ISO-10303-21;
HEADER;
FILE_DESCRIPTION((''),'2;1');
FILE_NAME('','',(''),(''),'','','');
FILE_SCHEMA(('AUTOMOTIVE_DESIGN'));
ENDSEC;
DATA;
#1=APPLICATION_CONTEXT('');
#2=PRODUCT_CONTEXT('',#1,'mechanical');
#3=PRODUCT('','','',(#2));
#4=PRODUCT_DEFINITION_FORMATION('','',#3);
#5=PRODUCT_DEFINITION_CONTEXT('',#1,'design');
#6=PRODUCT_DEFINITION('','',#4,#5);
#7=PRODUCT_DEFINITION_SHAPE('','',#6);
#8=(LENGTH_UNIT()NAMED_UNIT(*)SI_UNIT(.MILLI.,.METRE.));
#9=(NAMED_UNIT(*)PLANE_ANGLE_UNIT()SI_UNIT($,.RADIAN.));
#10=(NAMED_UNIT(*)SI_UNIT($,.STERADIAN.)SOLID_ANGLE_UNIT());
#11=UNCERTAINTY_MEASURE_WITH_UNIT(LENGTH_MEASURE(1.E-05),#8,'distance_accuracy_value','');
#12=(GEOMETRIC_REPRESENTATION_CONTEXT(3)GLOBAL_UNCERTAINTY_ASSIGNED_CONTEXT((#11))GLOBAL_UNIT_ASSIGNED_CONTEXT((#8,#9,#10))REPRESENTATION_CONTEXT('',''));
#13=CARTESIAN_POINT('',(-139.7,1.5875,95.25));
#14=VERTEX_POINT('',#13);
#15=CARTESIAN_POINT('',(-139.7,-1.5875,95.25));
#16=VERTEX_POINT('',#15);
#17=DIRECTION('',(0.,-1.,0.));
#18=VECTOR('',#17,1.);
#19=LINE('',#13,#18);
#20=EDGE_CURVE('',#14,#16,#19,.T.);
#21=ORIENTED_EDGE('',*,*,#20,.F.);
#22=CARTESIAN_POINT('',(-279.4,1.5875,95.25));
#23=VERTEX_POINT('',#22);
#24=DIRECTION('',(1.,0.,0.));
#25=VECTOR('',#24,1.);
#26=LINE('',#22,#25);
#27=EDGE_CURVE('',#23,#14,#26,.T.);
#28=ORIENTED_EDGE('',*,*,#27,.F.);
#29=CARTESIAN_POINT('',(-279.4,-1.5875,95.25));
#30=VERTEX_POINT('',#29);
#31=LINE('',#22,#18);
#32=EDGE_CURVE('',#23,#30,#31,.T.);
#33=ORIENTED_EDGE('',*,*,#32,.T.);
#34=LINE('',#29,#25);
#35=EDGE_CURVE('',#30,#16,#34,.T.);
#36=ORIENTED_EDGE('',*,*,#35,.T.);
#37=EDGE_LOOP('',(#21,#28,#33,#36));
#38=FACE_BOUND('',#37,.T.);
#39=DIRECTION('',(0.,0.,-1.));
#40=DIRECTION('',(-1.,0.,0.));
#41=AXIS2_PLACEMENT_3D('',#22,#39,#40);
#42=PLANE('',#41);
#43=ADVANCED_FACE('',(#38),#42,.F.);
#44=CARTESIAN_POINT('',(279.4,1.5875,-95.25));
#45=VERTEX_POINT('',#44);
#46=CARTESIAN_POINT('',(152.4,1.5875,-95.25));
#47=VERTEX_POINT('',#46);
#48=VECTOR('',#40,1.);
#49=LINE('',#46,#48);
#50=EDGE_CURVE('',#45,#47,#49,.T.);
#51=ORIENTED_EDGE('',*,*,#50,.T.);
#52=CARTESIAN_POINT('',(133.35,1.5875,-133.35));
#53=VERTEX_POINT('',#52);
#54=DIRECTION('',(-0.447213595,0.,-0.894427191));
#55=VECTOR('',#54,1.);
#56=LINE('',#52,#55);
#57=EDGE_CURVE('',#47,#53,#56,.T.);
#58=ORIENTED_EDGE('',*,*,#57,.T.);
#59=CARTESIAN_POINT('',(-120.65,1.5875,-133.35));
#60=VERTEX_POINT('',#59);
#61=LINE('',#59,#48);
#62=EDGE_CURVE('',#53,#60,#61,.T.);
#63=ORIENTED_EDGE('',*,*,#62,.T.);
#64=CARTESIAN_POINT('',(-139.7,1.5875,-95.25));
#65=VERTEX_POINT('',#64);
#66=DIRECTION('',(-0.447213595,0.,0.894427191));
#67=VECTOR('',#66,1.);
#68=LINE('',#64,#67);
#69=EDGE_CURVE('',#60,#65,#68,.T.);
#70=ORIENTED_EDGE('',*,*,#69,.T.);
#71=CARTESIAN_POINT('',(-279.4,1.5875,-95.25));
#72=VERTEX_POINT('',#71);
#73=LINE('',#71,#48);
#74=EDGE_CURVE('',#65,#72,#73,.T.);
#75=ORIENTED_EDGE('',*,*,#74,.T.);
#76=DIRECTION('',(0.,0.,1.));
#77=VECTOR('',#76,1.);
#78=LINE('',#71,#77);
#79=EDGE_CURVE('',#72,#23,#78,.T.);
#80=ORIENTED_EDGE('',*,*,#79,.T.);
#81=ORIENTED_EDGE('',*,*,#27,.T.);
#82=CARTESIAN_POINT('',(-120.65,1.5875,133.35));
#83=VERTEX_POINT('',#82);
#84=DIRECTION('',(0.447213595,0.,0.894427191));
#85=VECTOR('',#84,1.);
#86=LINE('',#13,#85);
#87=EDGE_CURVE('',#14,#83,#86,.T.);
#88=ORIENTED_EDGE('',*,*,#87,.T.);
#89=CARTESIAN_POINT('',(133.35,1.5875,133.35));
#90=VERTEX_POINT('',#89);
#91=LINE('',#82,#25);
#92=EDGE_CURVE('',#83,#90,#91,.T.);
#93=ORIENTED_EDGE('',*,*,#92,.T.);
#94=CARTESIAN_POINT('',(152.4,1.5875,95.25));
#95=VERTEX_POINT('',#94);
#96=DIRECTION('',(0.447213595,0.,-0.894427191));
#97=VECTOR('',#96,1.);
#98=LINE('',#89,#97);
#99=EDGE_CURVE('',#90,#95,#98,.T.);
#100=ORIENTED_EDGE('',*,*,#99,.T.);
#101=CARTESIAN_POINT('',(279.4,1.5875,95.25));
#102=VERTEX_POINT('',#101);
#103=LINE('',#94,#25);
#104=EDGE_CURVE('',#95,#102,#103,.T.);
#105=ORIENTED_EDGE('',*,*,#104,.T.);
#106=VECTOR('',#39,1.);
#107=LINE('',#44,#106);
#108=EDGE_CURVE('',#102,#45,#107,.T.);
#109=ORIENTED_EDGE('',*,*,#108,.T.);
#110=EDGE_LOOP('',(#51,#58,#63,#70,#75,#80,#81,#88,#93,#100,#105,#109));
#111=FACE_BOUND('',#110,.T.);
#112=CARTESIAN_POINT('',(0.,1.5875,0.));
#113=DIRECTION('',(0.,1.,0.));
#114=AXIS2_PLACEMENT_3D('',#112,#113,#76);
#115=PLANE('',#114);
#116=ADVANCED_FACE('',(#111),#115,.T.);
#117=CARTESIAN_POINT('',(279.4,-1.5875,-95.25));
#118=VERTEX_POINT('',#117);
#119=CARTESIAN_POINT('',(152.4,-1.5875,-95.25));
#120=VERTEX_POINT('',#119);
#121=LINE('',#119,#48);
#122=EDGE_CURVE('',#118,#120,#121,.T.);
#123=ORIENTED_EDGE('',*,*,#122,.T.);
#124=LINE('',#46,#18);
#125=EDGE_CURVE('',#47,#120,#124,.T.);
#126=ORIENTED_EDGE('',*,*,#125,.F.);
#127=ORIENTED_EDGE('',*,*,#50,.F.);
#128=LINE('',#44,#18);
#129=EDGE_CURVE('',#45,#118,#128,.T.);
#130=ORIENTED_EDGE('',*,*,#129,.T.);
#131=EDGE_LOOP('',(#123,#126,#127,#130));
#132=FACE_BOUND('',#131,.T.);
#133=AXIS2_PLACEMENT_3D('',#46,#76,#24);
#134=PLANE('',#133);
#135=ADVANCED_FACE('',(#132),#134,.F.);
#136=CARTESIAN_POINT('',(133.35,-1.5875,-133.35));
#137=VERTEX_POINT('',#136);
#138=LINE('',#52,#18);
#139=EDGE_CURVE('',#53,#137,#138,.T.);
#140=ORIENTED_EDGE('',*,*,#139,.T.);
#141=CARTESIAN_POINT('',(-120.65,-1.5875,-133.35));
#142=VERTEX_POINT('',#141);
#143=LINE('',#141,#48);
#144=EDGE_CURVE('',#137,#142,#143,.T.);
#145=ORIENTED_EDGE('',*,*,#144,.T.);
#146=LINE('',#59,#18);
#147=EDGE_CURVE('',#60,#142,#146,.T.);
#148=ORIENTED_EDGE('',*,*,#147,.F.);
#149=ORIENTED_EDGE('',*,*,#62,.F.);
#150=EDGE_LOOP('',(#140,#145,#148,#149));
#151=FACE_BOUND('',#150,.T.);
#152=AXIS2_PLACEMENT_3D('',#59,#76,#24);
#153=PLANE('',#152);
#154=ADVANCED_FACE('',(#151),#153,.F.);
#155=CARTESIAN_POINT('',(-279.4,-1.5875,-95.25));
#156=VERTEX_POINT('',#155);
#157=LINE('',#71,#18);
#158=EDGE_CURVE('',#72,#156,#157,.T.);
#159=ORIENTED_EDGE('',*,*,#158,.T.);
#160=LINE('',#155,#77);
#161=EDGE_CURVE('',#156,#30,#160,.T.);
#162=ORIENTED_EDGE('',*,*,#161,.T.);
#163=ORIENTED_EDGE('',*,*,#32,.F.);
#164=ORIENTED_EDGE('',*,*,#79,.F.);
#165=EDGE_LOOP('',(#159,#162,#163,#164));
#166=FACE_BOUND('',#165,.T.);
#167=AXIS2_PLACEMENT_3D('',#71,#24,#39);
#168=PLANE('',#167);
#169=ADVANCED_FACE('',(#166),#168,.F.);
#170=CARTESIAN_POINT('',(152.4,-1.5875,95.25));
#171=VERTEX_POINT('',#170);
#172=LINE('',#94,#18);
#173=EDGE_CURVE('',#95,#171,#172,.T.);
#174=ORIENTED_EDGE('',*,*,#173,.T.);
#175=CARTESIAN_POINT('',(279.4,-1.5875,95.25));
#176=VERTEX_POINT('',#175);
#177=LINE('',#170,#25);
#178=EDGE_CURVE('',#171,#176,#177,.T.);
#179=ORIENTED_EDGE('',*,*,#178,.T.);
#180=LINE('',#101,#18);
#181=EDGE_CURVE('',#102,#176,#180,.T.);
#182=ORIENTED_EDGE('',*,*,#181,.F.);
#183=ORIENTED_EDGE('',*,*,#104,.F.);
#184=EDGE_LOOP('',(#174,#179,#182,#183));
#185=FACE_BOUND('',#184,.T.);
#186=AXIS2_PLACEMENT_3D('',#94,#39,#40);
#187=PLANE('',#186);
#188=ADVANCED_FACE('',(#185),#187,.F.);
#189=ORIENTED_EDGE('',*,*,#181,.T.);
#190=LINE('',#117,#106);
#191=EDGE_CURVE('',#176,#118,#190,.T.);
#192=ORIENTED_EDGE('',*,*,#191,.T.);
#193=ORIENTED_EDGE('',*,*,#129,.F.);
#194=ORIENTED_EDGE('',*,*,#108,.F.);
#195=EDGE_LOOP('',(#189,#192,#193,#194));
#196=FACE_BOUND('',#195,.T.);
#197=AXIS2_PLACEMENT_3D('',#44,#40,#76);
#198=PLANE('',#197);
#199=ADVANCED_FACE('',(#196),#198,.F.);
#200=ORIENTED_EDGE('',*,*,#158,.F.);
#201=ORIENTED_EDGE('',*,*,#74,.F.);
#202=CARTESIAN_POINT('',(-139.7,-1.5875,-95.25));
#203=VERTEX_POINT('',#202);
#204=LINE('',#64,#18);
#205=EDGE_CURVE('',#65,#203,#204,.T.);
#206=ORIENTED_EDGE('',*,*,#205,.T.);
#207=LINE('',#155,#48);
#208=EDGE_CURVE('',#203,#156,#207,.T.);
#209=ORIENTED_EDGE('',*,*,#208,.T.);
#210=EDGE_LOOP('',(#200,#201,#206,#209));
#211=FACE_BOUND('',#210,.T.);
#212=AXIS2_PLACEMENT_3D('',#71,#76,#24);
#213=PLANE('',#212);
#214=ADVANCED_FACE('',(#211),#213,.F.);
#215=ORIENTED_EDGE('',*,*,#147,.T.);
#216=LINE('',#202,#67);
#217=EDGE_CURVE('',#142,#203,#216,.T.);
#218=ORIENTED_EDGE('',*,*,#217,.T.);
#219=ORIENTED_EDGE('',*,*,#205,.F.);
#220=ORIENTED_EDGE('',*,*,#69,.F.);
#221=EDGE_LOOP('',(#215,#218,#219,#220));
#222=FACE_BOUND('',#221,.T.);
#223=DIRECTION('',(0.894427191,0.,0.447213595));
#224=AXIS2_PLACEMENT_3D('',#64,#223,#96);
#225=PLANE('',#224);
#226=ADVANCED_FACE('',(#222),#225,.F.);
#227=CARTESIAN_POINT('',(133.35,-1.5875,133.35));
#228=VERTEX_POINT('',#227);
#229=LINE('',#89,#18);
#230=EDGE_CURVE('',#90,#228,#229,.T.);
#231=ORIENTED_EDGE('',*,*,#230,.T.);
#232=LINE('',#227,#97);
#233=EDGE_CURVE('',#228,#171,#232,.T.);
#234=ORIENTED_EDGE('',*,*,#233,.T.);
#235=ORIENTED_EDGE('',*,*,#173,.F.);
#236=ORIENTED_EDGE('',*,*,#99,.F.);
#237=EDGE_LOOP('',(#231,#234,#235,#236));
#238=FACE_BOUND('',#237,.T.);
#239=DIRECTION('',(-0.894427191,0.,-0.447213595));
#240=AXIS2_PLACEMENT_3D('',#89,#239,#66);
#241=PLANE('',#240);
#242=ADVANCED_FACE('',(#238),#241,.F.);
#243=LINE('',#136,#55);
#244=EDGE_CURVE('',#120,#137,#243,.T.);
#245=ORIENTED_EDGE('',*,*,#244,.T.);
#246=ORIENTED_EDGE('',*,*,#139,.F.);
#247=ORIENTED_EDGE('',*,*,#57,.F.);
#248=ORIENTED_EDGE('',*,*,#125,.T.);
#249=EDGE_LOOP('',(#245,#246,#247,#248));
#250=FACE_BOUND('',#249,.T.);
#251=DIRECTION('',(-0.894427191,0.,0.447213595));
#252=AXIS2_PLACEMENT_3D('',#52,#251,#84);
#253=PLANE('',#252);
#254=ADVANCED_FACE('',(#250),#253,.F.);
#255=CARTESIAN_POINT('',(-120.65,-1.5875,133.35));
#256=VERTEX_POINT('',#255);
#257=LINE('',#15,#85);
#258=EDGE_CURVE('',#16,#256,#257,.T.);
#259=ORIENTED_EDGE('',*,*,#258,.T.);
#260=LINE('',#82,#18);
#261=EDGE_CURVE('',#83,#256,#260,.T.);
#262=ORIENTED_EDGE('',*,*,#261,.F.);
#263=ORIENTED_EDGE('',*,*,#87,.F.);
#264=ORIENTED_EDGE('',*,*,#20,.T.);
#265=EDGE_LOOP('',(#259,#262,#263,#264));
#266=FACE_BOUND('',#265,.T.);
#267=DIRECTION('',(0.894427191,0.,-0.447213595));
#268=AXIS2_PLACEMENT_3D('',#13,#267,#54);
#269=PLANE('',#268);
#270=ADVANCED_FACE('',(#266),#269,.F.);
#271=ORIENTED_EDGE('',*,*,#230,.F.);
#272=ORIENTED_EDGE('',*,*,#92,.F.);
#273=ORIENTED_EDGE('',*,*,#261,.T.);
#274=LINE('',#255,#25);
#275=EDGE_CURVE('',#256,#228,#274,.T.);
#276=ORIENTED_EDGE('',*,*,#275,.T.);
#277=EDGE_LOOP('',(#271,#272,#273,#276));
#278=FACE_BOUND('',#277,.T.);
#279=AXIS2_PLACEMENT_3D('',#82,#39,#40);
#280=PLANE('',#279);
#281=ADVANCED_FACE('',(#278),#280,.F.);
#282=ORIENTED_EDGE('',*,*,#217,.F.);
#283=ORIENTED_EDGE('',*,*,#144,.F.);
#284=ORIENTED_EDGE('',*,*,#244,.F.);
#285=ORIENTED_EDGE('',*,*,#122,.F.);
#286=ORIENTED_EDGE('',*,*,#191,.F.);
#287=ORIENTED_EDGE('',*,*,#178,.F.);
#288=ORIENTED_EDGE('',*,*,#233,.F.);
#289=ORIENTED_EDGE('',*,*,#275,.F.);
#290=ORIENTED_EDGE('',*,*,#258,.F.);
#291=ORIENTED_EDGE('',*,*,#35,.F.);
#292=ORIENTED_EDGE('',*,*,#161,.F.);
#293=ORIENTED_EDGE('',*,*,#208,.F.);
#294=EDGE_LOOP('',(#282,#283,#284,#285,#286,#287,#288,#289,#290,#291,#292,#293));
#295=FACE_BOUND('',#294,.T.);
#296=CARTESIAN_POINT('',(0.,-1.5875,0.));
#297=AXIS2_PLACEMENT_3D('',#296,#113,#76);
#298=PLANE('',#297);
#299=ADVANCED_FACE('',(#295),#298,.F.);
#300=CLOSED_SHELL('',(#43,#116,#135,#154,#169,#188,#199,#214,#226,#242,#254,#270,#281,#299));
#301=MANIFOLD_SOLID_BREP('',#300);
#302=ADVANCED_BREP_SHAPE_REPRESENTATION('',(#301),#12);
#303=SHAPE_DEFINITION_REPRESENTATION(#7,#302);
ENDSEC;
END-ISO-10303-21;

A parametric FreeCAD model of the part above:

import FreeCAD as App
import Part
import Sketcher
Q = App.Units.Quantity

doc = App.newDocument("Part")
body = doc.addObject("PartDesign::Body", "Body")

# Sketch on XZ plane
sketch1 = body.newObject("Sketcher::SketchObject", "Sketch")
sketch1.AttachmentSupport = (doc.getObject("XZ_Plane"), [""])
sketch1.MapMode = "FlatFace"
sketch1.addGeometry([
    Part.LineSegment(App.Vector(-140, -95, 0), App.Vector(-279, -95, 0)),  # 0
    Part.LineSegment(App.Vector(-279, -95, 0), App.Vector(-279, 95, 0)),  # 1
    Part.LineSegment(App.Vector(-279, 95, 0), App.Vector(-140, 95, 0)),  # 2
    Part.LineSegment(App.Vector(-140, 95, 0), App.Vector(-121, 133, 0)),  # 3
    Part.LineSegment(App.Vector(-121, 133, 0), App.Vector(133, 133, 0)),  # 4
    Part.LineSegment(App.Vector(133, 133, 0), App.Vector(152, 95, 0)),  # 5
    Part.LineSegment(App.Vector(152, 95, 0), App.Vector(279, 95, 0)),  # 6
    Part.LineSegment(App.Vector(279, 95, 0), App.Vector(279, -95, 0)),  # 7
    Part.LineSegment(App.Vector(279, -95, 0), App.Vector(152, -95, 0)),  # 8
    Part.LineSegment(App.Vector(152, -95, 0), App.Vector(133, -133, 0)),  # 9
    Part.LineSegment(App.Vector(133, -133, 0), App.Vector(-121, -133, 0)),  # 10
    Part.LineSegment(App.Vector(-121, -133, 0), App.Vector(-140, -95, 0)),  # 11
], False)
sketch1.addConstraint([
    Sketcher.Constraint("Coincident", 0, 2, 1, 1),
    Sketcher.Constraint("Coincident", 1, 2, 2, 1),
    Sketcher.Constraint("Coincident", 2, 2, 3, 1),
    Sketcher.Constraint("Coincident", 3, 2, 4, 1),
    Sketcher.Constraint("Coincident", 4, 2, 5, 1),
    Sketcher.Constraint("Coincident", 5, 2, 6, 1),
    Sketcher.Constraint("Coincident", 6, 2, 7, 1),
    Sketcher.Constraint("Coincident", 7, 2, 8, 1),
    Sketcher.Constraint("Coincident", 8, 2, 9, 1),
    Sketcher.Constraint("Coincident", 9, 2, 10, 1),
    Sketcher.Constraint("Coincident", 10, 2, 11, 1),
    Sketcher.Constraint("Coincident", 11, 2, 0, 1),
    Sketcher.Constraint("Horizontal", 0),
    Sketcher.Constraint("Vertical", 1),
    Sketcher.Constraint("Horizontal", 2),
    Sketcher.Constraint("Horizontal", 4),
    Sketcher.Constraint("Horizontal", 6),
    Sketcher.Constraint("Vertical", 7),
    Sketcher.Constraint("Horizontal", 8),
    Sketcher.Constraint("Horizontal", 10),
    Sketcher.Constraint("Symmetric", 0, 2, 6, 2, -1, 1),
    Sketcher.Constraint("Symmetric", 5, 2, 8, 2, -1),
    Sketcher.Constraint("Symmetric", 4, 2, 9, 2, -1),
    Sketcher.Constraint("Symmetric", 2, 2, 11, 2, -1),
    Sketcher.Constraint("Parallel", 3, 9),
    Sketcher.Constraint("Parallel", 5, 11),
    Sketcher.Constraint("DistanceX", 4, 1, 4, 2, Q("10 in")),
    Sketcher.Constraint("DistanceX", 6, 1, 6, 2, Q("5 in")),
    Sketcher.Constraint("DistanceX", 0, 2, 0, 1, Q("5.5 in")),
    Sketcher.Constraint("DistanceY", 1, 1, 1, 2, Q("7.5 in")),
    Sketcher.Constraint("DistanceX", 0, 2, -1, 1, Q("11 in")),
    Sketcher.Constraint("DistanceY", 0, 2, 3, 2, Q("9 in")),
])
pad1 = body.newObject("PartDesign::Pad", "Pad")
pad1.Profile = sketch1
pad1.Length = Q("0.125 in")
pad1.Midplane = True

doc.recompute()
